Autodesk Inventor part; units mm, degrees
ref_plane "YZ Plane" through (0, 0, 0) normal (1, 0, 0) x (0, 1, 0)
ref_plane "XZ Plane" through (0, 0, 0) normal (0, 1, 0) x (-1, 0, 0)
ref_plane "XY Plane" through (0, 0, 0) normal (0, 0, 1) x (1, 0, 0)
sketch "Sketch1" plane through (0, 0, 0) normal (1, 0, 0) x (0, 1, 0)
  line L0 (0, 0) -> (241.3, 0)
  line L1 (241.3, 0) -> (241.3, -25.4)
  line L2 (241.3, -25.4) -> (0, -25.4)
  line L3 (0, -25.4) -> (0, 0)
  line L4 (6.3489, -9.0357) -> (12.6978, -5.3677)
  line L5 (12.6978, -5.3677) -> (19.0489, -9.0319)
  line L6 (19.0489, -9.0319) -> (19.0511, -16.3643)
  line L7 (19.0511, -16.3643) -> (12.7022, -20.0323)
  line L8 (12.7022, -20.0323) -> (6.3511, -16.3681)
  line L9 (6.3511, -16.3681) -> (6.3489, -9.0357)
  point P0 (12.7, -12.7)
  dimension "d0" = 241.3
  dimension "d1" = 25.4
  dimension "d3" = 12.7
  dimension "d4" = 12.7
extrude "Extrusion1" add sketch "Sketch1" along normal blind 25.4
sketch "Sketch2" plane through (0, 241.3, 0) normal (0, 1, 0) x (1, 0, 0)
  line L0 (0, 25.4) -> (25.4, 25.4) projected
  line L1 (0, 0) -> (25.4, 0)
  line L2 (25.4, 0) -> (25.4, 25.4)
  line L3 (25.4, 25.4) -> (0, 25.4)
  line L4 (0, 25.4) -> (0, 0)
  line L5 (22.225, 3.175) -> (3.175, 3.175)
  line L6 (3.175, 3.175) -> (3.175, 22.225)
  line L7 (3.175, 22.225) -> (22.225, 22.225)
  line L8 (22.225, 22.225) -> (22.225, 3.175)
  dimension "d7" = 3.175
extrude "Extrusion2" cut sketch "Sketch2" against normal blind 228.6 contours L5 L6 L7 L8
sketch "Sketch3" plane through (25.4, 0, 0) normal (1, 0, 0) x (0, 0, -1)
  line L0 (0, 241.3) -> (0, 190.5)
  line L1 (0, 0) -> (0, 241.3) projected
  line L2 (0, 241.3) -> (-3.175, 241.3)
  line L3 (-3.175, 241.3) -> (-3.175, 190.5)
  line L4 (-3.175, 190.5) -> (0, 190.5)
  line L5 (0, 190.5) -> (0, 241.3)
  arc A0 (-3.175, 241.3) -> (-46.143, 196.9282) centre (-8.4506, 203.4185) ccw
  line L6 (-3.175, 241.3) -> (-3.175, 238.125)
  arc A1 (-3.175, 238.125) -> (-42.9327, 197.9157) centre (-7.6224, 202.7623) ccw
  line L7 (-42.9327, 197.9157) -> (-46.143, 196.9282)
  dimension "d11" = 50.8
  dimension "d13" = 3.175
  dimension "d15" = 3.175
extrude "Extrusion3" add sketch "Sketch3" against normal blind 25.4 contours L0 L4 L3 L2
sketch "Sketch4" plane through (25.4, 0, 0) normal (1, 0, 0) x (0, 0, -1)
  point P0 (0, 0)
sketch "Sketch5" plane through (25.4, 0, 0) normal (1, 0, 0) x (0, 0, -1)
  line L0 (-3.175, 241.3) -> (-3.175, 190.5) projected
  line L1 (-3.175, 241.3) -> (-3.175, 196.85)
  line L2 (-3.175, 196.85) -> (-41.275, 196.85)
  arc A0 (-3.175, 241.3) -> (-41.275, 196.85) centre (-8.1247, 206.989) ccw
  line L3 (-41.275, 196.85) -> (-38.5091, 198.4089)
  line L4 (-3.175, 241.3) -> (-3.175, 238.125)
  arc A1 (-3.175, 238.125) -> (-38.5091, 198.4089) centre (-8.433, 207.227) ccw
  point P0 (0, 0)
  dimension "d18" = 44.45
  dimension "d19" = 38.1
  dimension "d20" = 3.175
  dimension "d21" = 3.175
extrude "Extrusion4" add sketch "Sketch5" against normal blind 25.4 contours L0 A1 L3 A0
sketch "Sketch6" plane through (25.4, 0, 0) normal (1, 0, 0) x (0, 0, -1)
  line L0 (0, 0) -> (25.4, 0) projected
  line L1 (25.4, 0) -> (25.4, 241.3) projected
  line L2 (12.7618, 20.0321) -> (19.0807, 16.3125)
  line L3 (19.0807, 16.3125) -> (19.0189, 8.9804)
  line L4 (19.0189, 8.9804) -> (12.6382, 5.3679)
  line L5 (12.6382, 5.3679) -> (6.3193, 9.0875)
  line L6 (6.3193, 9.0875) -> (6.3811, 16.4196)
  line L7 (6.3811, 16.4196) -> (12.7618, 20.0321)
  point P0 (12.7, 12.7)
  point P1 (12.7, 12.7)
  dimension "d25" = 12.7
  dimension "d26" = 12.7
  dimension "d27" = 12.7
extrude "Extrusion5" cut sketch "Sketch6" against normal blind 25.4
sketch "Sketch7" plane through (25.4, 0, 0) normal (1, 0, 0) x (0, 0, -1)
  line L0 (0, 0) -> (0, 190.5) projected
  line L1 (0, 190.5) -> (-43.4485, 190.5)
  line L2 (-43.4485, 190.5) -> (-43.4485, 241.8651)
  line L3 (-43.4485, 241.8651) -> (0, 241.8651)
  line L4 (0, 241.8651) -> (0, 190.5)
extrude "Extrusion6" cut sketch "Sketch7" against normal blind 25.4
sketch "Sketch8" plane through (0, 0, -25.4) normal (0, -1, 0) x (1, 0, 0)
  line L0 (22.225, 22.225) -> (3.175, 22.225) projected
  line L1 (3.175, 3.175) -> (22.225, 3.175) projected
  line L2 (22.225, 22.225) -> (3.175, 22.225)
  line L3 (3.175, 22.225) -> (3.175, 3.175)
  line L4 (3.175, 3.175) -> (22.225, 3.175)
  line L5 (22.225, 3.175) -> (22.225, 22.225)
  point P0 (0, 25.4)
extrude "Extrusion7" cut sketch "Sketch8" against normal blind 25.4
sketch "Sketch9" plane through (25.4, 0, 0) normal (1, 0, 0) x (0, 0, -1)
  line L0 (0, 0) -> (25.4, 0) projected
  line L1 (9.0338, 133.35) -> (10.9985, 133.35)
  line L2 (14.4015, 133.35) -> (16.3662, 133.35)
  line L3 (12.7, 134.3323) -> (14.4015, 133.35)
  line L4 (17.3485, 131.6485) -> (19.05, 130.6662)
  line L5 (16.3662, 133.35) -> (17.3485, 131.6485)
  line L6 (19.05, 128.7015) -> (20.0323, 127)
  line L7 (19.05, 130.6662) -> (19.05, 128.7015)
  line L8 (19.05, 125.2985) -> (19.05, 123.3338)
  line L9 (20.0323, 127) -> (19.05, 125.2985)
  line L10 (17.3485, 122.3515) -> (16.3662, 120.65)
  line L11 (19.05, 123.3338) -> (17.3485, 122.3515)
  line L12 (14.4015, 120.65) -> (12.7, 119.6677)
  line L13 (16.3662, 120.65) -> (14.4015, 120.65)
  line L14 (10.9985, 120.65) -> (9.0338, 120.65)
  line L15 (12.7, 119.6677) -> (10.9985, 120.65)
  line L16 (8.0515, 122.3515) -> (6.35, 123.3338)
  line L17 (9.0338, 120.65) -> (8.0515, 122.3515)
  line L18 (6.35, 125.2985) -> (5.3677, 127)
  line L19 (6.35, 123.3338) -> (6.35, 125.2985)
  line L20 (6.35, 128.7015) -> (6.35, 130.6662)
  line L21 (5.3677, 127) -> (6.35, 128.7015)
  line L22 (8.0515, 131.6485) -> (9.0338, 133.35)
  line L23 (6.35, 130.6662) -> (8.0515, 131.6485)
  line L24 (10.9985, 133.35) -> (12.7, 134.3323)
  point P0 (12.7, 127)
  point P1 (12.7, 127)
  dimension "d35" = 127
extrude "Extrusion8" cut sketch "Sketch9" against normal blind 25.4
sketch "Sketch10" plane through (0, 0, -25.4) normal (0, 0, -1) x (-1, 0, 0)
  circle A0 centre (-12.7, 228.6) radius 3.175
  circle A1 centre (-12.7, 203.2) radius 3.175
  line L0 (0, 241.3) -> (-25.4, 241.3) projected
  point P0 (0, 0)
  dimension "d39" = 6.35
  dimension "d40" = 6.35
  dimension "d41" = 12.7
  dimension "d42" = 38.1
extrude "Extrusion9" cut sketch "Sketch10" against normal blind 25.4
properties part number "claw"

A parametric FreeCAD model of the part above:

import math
import FreeCAD as App
import Part
import Sketcher
from FreeCAD import Vector
Q = App.Units.Quantity


def add_polygon(sketch, points):
    """Adds a closed chain of lines whose ends are joined by coincident constraints."""
    first, n = sketch.GeometryCount, len(points)
    for a, b in zip(points, points[1:] + points[:1]):
        sketch.addGeometry(Part.LineSegment(App.Vector(*a, 0), App.Vector(*b, 0)), False)
    for i in range(n):
        sketch.addConstraint(Sketcher.Constraint("Coincident", first + i, 2, first + (i + 1) % n, 1))

doc = App.newDocument("Part")
body = doc.addObject("PartDesign::Body", "Body")

sketch1 = doc.addObject("Sketcher::SketchObject", "Sketch")
body.addObject(sketch1)
sketch1.AttachmentSupport = (doc.YZ_Plane, [""])
sketch1.MapMode = "FlatFace"
add_polygon(sketch1, [(241, 0), (0, 0), (0, -25), (241, -25)])
add_polygon(sketch1, [(6, -16), (6, -9), (13, -5), (19, -9), (19, -16), (13, -20)])
sketch1.addConstraint(Sketcher.Constraint("Horizontal", 0))
sketch1.addConstraint(Sketcher.Constraint("Vertical", 1))
sketch1.addConstraint(Sketcher.Constraint("Horizontal", 2))
sketch1.addConstraint(Sketcher.Constraint("Vertical", 3))
sketch1.addConstraint(Sketcher.Constraint("Coincident", 0, 2, -1, 1))
sketch1.addConstraint(Sketcher.Constraint("Parallel", 4, 7))
sketch1.addConstraint(Sketcher.Constraint("Parallel", 5, 8))
sketch1.addConstraint(Sketcher.Constraint("Parallel", 6, 9))
sketch1.addConstraint(Sketcher.Constraint("Equal", 4, 5))
sketch1.addConstraint(Sketcher.Constraint("Equal", 5, 6))
sketch1.addConstraint(Sketcher.Constraint("Equal", 6, 7))
sketch1.addConstraint(Sketcher.Constraint("DistanceY", 1, 2, 1, 1, Q("1 in")))
sketch1.addConstraint(Sketcher.Constraint("DistanceX", 0, 2, 0, 1, Q("9.5 in")))
sketch1.addConstraint(Sketcher.Constraint("DistanceX", 4, 2, 6, 2, Q("0.5 in")))
sketch1.addConstraint(Sketcher.Constraint("DistanceY", 4, 2, 5, 2, Q("0.1444 in")))
sketch1.addConstraint(Sketcher.Constraint("Distance", 4, 7.3324))
sketch1.addConstraint(Sketcher.Constraint("DistanceX", -1, 1, 4, 2, 6.349))
sketch1.addConstraint(Sketcher.Constraint("DistanceY", 4, 2, -1, 1, 9.0357))
sketch1.addConstraint(Sketcher.Constraint("DistanceX", -1, 1, 7, 2, 19.051))
pad1 = doc.addObject("PartDesign::Pad", "Pad")
body.addObject(pad1)
pad1.Profile = sketch1
pad1.Length = Q("1 in")

sketch2 = doc.addObject("Sketcher::SketchObject", "Sketch001")
body.addObject(sketch2)
sketch2.AttachmentSupport = (doc.XZ_Plane, [""])
sketch2.MapMode = "FlatFace"
sketch2.AttachmentOffset = App.Placement(Vector(0, 0, -9.5 * 25.4), App.Rotation())
add_polygon(sketch2, [(3, -3), (22, -3), (22, -22), (3, -22)])
sketch2.addConstraint(Sketcher.Constraint("Horizontal", 0))
sketch2.addConstraint(Sketcher.Constraint("Vertical", 1))
sketch2.addConstraint(Sketcher.Constraint("Horizontal", 2))
sketch2.addConstraint(Sketcher.Constraint("Vertical", 3))
sketch2.addConstraint(Sketcher.Constraint("Equal", 2, 1))
sketch2.addConstraint(Sketcher.Constraint("DistanceY", 0, 2, -1, 1, Q("0.125 in")))
sketch2.addConstraint(Sketcher.Constraint("DistanceX", -1, 1, 2, 2, Q("0.125 in")))
sketch2.addConstraint(Sketcher.Constraint("DistanceX", 0, 1, 0, 2, Q("0.75 in")))
pocket1 = doc.addObject("PartDesign::Pocket", "Pocket")
body.addObject(pocket1)
pocket1.Profile = sketch2
pocket1.Length = Q("9 in")
pocket1.Reversed = True

sketch3 = doc.addObject("Sketcher::SketchObject", "Sketch002")
body.addObject(sketch3)
sketch3.AttachmentSupport = (doc.YZ_Plane, [""])
sketch3.MapMode = "FlatFace"
sketch3.AttachmentOffset = App.Placement(Vector(0, 0, 1 * 25.4), App.Rotation())
add_polygon(sketch3, [(190.5, 0), (241.3, 0), (241.3, 3.2), (190.5, 3.2)])
sketch3.addConstraint(Sketcher.Constraint("Horizontal", 0))
sketch3.addConstraint(Sketcher.Constraint("Vertical", 1))
sketch3.addConstraint(Sketcher.Constraint("Horizontal", 2))
sketch3.addConstraint(Sketcher.Constraint("Vertical", 3))
sketch3.addConstraint(Sketcher.Constraint("PointOnObject", 0, 2, -1))
sketch3.addConstraint(Sketcher.Constraint("DistanceX", 0, 1, 0, 2, Q("2 in")))
sketch3.addConstraint(Sketcher.Constraint("DistanceY", 1, 1, 1, 2, Q("0.125 in")))
sketch3.addConstraint(Sketcher.Constraint("DistanceX", -1, 1, 0, 2, Q("9.5 in")))
pad2 = doc.addObject("PartDesign::Pad", "Pad001")
body.addObject(pad2)
pad2.Profile = sketch3
pad2.Length = Q("1 in")
pad2.Reversed = True

sketch4 = doc.addObject("Sketcher::SketchObject", "Sketch003")
body.addObject(sketch4)
sketch4.AttachmentSupport = (doc.YZ_Plane, [""])
sketch4.MapMode = "FlatFace"
sketch4.AttachmentOffset = App.Placement(Vector(0, 0, 1 * 25.4), App.Rotation())
sketch4.addGeometry(Part.LineSegment(Vector(238.1, 3.2, 0), Vector(241.3, 3.2, 0)), False)
sketch4.addGeometry(Part.ArcOfCircle(Part.Circle(Vector(207, 8.1, 0), Vector(0, 0, 1), 34.7), math.radians(-8), math.radians(107)), False)
sketch4.addGeometry(Part.LineSegment(Vector(196.8, 41.3, 0), Vector(198.4, 38.5, 0)), False)
sketch4.addGeometry(Part.ArcOfCircle(Part.Circle(Vector(207.2, 8.4, 0), Vector(0, 0, 1), 31.3), math.radians(-10), math.radians(106)), False)
sketch4.addConstraint(Sketcher.Constraint("Coincident", 0, 2, 1, 1))
sketch4.addConstraint(Sketcher.Constraint("Coincident", 1, 2, 2, 1))
sketch4.addConstraint(Sketcher.Constraint("Coincident", 2, 2, 3, 2))
sketch4.addConstraint(Sketcher.Constraint("Coincident", 3, 1, 0, 1))
sketch4.addConstraint(Sketcher.Constraint("Horizontal", 0))
sketch4.addConstraint(Sketcher.Constraint("DistanceY", 0, 2, 1, 2, Q("1.5 in")))
sketch4.addConstraint(Sketcher.Constraint("DistanceX", 0, 1, 0, 2, Q("0.125 in")))
sketch4.addConstraint(Sketcher.Constraint("DistanceX", 1, 2, 0, 2, Q("1.75 in")))
sketch4.addConstraint(Sketcher.Constraint("Distance", 2, Q("0.125 in")))
sketch4.addConstraint(Sketcher.Constraint("DistanceY", -1, 1, 0, 2, Q("0.125 in")))
sketch4.addConstraint(Sketcher.Constraint("DistanceX", -1, 1, 0, 2, Q("9.5 in")))
sketch4.addConstraint(Sketcher.Constraint("Radius", 1, Q("1.3648 in")))
sketch4.addConstraint(Sketcher.Constraint("Radius", 3, 31.3422))
sketch4.addConstraint(Sketcher.Constraint("DistanceY", -1, 1, 3, 3, Q("0.332 in")))
pad3 = doc.addObject("PartDesign::Pad", "Pad002")
body.addObject(pad3)
pad3.Profile = sketch4
pad3.Length = Q("1 in")
pad3.Reversed = True

sketch5 = doc.addObject("Sketcher::SketchObject", "Sketch004")
body.addObject(sketch5)
sketch5.AttachmentSupport = (doc.YZ_Plane, [""])
sketch5.MapMode = "FlatFace"
sketch5.AttachmentOffset = App.Placement(Vector(0, 0, 1 * 25.4), App.Rotation())
add_polygon(sketch5, [(16, -19), (20, -13), (16, -6), (9, -6), (5, -13), (9, -19)])
sketch5.addConstraint(Sketcher.Constraint("Parallel", 0, 3))
sketch5.addConstraint(Sketcher.Constraint("Parallel", 1, 4))
sketch5.addConstraint(Sketcher.Constraint("Parallel", 2, 5))
sketch5.addConstraint(Sketcher.Constraint("Equal", 0, 1))
sketch5.addConstraint(Sketcher.Constraint("Equal", 1, 2))
sketch5.addConstraint(Sketcher.Constraint("Equal", 2, 3))
sketch5.addConstraint(Sketcher.Constraint("DistanceY", 4, 2, 2, 2, 12.6996))
sketch5.addConstraint(Sketcher.Constraint("DistanceY", 2, 2, -1, 1, Q("0.2488 in")))
sketch5.addConstraint(Sketcher.Constraint("DistanceY", 5, 2, -1, 1, Q("0.7512 in")))
sketch5.addConstraint(Sketcher.Constraint("DistanceY", 0, 2, 1, 2, Q("0.2512 in")))
sketch5.addConstraint(Sketcher.Constraint("DistanceX", 2, 2, 0, 2, Q("0.4309 in")))
sketch5.addConstraint(Sketcher.Constraint("DistanceX", -1, 1, 0, 2, 20.032))
pocket2 = doc.addObject("PartDesign::Pocket", "Pocket001")
body.addObject(pocket2)
pocket2.Profile = sketch5
pocket2.Length = Q("1 in")

sketch6 = doc.addObject("Sketcher::SketchObject", "Sketch005")
body.addObject(sketch6)
sketch6.AttachmentSupport = (doc.YZ_Plane, [""])
sketch6.MapMode = "FlatFace"
sketch6.AttachmentOffset = App.Placement(Vector(0, 0, 1 * 25.4), App.Rotation())
add_polygon(sketch6, [(190, 43), (190, 0), (242, 0), (242, 43)])
sketch6.addConstraint(Sketcher.Constraint("Vertical", 0))
sketch6.addConstraint(Sketcher.Constraint("Horizontal", 1))
sketch6.addConstraint(Sketcher.Constraint("Vertical", 2))
sketch6.addConstraint(Sketcher.Constraint("Horizontal", 3))
sketch6.addConstraint(Sketcher.Constraint("PointOnObject", 0, 2, -1))
sketch6.addConstraint(Sketcher.Constraint("DistanceX", -1, 1, 0, 2, Q("7.5 in")))
sketch6.addConstraint(Sketcher.Constraint("DistanceX", 1, 1, 1, 2, 51.365))
sketch6.addConstraint(Sketcher.Constraint("DistanceY", 0, 2, 0, 1, 43.4485))
pocket3 = doc.addObject("PartDesign::Pocket", "Pocket002")
body.addObject(pocket3)
pocket3.Profile = sketch6
pocket3.Length = Q("1 in")

sketch7 = doc.addObject("Sketcher::SketchObject", "Sketch006")
body.addObject(sketch7)
sketch7.AttachmentSupport = (doc.XZ_Plane, [""])
sketch7.MapMode = "FlatFace"
add_polygon(sketch7, [(22, -22), (22, -3), (3, -3), (3, -22)])
sketch7.addConstraint(Sketcher.Constraint("Vertical", 0))
sketch7.addConstraint(Sketcher.Constraint("Horizontal", 1))
sketch7.addConstraint(Sketcher.Constraint("Vertical", 2))
sketch7.addConstraint(Sketcher.Constraint("Horizontal", 3))
sketch7.addConstraint(Sketcher.Constraint("Equal", 3, 0))
sketch7.addConstraint(Sketcher.Constraint("DistanceX", 1, 2, 1, 1, Q("0.75 in")))
sketch7.addConstraint(Sketcher.Constraint("DistanceX", -1, 1, 0, 2, Q("0.875 in")))
sketch7.addConstraint(Sketcher.Constraint("DistanceY", 0, 2, -1, 1, Q("0.125 in")))
pocket4 = doc.addObject("PartDesign::Pocket", "Pocket003")
body.addObject(pocket4)
pocket4.Profile = sketch7
pocket4.Length = Q("1 in")

sketch8 = doc.addObject("Sketcher::SketchObject", "Sketch007")
body.addObject(sketch8)
sketch8.AttachmentSupport = (doc.YZ_Plane, [""])
sketch8.MapMode = "FlatFace"
sketch8.AttachmentOffset = App.Placement(Vector(0, 0, 1 * 25.4), App.Rotation())
add_polygon(sketch8, [(133.3, -11), (133.3, -9), (131.6, -8.1), (130.7, -6.3), (128.7, -6.3), (127, -5.4), (125.3, -6.3), (123.3, -6.3), (122.4, -8.1), (120.7, -9), (120.7, -11), (119.7, -12.7), (120.7, -14.4), (120.7, -16.4), (122.4, -17.3), (123.3, -19.1), (125.3, -19.1), (127, -20), (128.7, -19.1), (130.7, -19.1), (131.6, -17.3), (133.3, -16.4), (133.3, -14.4), (134.3, -12.7)])
sketch8.addConstraint(Sketcher.Constraint("Vertical", 0))
sketch8.addConstraint(Sketcher.Constraint("Horizontal", 3))
sketch8.addConstraint(Sketcher.Constraint("Horizontal", 6))
sketch8.addConstraint(Sketcher.Constraint("Vertical", 9))
sketch8.addConstraint(Sketcher.Constraint("Vertical", 12))
sketch8.addConstraint(Sketcher.Constraint("Horizontal", 15))
sketch8.addConstraint(Sketcher.Constraint("Horizontal", 18))
sketch8.addConstraint(Sketcher.Constraint("Vertical", 21))
sketch8.addConstraint(Sketcher.Constraint("Parallel", 1, 4))
sketch8.addConstraint(Sketcher.Constraint("Perpendicular", 2, 5))
sketch8.addConstraint(Sketcher.Constraint("Perpendicular", 4, 7))
sketch8.addConstraint(Sketcher.Constraint("Parallel", 5, 8))
sketch8.addConstraint(Sketcher.Constraint("Parallel", 7, 10))
sketch8.addConstraint(Sketcher.Constraint("Perpendicular", 8, 11))
sketch8.addConstraint(Sketcher.Constraint("Perpendicular", 10, 13))
sketch8.addConstraint(Sketcher.Constraint("Parallel", 11, 14))
sketch8.addConstraint(Sketcher.Constraint("Parallel", 13, 16))
sketch8.addConstraint(Sketcher.Constraint("Perpendicular", 14, 17))
sketch8.addConstraint(Sketcher.Constraint("Perpendicular", 16, 19))
sketch8.addConstraint(Sketcher.Constraint("Parallel", 17, 20))
sketch8.addConstraint(Sketcher.Constraint("Parallel", 19, 22))
sketch8.addConstraint(Sketcher.Constraint("Perpendicular", 20, 23))
sketch8.addConstraint(Sketcher.Constraint("Horizontal", 3, 2, 5, 2))
sketch8.addConstraint(Sketcher.Constraint("Horizontal", 1, 2, 7, 2))
sketch8.addConstraint(Sketcher.Constraint("Horizontal", 0, 2, 8, 2))
sketch8.addConstraint(Sketcher.Constraint("Horizontal", 15, 2, 17, 2))
sketch8.addConstraint(Sketcher.Constraint("Horizontal", 13, 2, 19, 2))
sketch8.addConstraint(Sketcher.Constraint("Horizontal", 12, 2, 20, 2))
sketch8.addConstraint(Sketcher.Constraint("Horizontal", 11, 2, 21, 2))
sketch8.addConstraint(Sketcher.Constraint("Horizontal", 10, 2, 22, 2))
sketch8.addConstraint(Sketcher.Constraint("Horizontal", 9, 2, 23, 2))
sketch8.addConstraint(Sketcher.Constraint("Vertical", 9, 2, 11, 2))
sketch8.addConstraint(Sketcher.Constraint("Vertical", 7, 2, 13, 2))
sketch8.addConstraint(Sketcher.Constraint("Vertical", 6, 2, 14, 2))
sketch8.addConstraint(Sketcher.Constraint("Vertical", 5, 2, 15, 2))
sketch8.addConstraint(Sketcher.Constraint("Vertical", 4, 2, 16, 2))
sketch8.addConstraint(Sketcher.Constraint("Vertical", 3, 2, 17, 2))
sketch8.addConstraint(Sketcher.Constraint("Equal", 3, 6))
sketch8.addConstraint(Sketcher.Constraint("Equal", 18, 0))
sketch8.addConstraint(Sketcher.Constraint("Equal", 9, 12))
sketch8.addConstraint(Sketcher.Constraint("Equal", 1, 2))
sketch8.addConstraint(Sketcher.Constraint("Equal", 2, 4))
sketch8.addConstraint(Sketcher.Constraint("Equal", 8, 10))
sketch8.addConstraint(Sketcher.Constraint("DistanceX", -1, 1, 4, 2, Q("5 in")))
sketch8.addConstraint(Sketcher.Constraint("DistanceY", 10, 2, -1, 1, Q("0.5 in")))
sketch8.addConstraint(Sketcher.Constraint("DistanceX", -1, 1, 0, 2, Q("5.25 in")))
sketch8.addConstraint(Sketcher.Constraint("DistanceX", -1, 1, 1, 2, Q("5.183 in")))
sketch8.addConstraint(Sketcher.Constraint("DistanceX", 3, 2, 3, 1, 1.9647))
pocket5 = doc.addObject("PartDesign::Pocket", "Pocket004")
body.addObject(pocket5)
pocket5.Profile = sketch8
pocket5.Length = Q("1 in")

sketch9 = doc.addObject("Sketcher::SketchObject", "Sketch008")
body.addObject(sketch9)
sketch9.AttachmentSupport = (doc.XY_Plane, [""])
sketch9.MapMode = "FlatFace"
sketch9.AttachmentOffset = App.Placement(Vector(0, 0, -1 * 25.4), App.Rotation())
sketch9.addGeometry(Part.Circle(Vector(12.7, 228.6, 0), Vector(0, 0, 1), 3.2), False)
sketch9.addGeometry(Part.Circle(Vector(12.7, 203.2, 0), Vector(0, 0, 1), 3.2), False)
sketch9.addConstraint(Sketcher.Constraint("Equal", 0, 1))
sketch9.addConstraint(Sketcher.Constraint("Vertical", 0, 3, 1, 3))
sketch9.addConstraint(Sketcher.Constraint("Diameter", 0, Q("0.25 in")))
sketch9.addConstraint(Sketcher.Constraint("DistanceX", -1, 1, 0, 3, Q("0.5 in")))
sketch9.addConstraint(Sketcher.Constraint("DistanceY", -1, 1, 0, 3, Q("9 in")))
sketch9.addConstraint(Sketcher.Constraint("DistanceY", -1, 1, 1, 3, Q("8 in")))
pocket6 = doc.addObject("PartDesign::Pocket", "Pocket005")
body.addObject(pocket6)
pocket6.Profile = sketch9
pocket6.Length = Q("1 in")
pocket6.Reversed = True

doc.recompute()
